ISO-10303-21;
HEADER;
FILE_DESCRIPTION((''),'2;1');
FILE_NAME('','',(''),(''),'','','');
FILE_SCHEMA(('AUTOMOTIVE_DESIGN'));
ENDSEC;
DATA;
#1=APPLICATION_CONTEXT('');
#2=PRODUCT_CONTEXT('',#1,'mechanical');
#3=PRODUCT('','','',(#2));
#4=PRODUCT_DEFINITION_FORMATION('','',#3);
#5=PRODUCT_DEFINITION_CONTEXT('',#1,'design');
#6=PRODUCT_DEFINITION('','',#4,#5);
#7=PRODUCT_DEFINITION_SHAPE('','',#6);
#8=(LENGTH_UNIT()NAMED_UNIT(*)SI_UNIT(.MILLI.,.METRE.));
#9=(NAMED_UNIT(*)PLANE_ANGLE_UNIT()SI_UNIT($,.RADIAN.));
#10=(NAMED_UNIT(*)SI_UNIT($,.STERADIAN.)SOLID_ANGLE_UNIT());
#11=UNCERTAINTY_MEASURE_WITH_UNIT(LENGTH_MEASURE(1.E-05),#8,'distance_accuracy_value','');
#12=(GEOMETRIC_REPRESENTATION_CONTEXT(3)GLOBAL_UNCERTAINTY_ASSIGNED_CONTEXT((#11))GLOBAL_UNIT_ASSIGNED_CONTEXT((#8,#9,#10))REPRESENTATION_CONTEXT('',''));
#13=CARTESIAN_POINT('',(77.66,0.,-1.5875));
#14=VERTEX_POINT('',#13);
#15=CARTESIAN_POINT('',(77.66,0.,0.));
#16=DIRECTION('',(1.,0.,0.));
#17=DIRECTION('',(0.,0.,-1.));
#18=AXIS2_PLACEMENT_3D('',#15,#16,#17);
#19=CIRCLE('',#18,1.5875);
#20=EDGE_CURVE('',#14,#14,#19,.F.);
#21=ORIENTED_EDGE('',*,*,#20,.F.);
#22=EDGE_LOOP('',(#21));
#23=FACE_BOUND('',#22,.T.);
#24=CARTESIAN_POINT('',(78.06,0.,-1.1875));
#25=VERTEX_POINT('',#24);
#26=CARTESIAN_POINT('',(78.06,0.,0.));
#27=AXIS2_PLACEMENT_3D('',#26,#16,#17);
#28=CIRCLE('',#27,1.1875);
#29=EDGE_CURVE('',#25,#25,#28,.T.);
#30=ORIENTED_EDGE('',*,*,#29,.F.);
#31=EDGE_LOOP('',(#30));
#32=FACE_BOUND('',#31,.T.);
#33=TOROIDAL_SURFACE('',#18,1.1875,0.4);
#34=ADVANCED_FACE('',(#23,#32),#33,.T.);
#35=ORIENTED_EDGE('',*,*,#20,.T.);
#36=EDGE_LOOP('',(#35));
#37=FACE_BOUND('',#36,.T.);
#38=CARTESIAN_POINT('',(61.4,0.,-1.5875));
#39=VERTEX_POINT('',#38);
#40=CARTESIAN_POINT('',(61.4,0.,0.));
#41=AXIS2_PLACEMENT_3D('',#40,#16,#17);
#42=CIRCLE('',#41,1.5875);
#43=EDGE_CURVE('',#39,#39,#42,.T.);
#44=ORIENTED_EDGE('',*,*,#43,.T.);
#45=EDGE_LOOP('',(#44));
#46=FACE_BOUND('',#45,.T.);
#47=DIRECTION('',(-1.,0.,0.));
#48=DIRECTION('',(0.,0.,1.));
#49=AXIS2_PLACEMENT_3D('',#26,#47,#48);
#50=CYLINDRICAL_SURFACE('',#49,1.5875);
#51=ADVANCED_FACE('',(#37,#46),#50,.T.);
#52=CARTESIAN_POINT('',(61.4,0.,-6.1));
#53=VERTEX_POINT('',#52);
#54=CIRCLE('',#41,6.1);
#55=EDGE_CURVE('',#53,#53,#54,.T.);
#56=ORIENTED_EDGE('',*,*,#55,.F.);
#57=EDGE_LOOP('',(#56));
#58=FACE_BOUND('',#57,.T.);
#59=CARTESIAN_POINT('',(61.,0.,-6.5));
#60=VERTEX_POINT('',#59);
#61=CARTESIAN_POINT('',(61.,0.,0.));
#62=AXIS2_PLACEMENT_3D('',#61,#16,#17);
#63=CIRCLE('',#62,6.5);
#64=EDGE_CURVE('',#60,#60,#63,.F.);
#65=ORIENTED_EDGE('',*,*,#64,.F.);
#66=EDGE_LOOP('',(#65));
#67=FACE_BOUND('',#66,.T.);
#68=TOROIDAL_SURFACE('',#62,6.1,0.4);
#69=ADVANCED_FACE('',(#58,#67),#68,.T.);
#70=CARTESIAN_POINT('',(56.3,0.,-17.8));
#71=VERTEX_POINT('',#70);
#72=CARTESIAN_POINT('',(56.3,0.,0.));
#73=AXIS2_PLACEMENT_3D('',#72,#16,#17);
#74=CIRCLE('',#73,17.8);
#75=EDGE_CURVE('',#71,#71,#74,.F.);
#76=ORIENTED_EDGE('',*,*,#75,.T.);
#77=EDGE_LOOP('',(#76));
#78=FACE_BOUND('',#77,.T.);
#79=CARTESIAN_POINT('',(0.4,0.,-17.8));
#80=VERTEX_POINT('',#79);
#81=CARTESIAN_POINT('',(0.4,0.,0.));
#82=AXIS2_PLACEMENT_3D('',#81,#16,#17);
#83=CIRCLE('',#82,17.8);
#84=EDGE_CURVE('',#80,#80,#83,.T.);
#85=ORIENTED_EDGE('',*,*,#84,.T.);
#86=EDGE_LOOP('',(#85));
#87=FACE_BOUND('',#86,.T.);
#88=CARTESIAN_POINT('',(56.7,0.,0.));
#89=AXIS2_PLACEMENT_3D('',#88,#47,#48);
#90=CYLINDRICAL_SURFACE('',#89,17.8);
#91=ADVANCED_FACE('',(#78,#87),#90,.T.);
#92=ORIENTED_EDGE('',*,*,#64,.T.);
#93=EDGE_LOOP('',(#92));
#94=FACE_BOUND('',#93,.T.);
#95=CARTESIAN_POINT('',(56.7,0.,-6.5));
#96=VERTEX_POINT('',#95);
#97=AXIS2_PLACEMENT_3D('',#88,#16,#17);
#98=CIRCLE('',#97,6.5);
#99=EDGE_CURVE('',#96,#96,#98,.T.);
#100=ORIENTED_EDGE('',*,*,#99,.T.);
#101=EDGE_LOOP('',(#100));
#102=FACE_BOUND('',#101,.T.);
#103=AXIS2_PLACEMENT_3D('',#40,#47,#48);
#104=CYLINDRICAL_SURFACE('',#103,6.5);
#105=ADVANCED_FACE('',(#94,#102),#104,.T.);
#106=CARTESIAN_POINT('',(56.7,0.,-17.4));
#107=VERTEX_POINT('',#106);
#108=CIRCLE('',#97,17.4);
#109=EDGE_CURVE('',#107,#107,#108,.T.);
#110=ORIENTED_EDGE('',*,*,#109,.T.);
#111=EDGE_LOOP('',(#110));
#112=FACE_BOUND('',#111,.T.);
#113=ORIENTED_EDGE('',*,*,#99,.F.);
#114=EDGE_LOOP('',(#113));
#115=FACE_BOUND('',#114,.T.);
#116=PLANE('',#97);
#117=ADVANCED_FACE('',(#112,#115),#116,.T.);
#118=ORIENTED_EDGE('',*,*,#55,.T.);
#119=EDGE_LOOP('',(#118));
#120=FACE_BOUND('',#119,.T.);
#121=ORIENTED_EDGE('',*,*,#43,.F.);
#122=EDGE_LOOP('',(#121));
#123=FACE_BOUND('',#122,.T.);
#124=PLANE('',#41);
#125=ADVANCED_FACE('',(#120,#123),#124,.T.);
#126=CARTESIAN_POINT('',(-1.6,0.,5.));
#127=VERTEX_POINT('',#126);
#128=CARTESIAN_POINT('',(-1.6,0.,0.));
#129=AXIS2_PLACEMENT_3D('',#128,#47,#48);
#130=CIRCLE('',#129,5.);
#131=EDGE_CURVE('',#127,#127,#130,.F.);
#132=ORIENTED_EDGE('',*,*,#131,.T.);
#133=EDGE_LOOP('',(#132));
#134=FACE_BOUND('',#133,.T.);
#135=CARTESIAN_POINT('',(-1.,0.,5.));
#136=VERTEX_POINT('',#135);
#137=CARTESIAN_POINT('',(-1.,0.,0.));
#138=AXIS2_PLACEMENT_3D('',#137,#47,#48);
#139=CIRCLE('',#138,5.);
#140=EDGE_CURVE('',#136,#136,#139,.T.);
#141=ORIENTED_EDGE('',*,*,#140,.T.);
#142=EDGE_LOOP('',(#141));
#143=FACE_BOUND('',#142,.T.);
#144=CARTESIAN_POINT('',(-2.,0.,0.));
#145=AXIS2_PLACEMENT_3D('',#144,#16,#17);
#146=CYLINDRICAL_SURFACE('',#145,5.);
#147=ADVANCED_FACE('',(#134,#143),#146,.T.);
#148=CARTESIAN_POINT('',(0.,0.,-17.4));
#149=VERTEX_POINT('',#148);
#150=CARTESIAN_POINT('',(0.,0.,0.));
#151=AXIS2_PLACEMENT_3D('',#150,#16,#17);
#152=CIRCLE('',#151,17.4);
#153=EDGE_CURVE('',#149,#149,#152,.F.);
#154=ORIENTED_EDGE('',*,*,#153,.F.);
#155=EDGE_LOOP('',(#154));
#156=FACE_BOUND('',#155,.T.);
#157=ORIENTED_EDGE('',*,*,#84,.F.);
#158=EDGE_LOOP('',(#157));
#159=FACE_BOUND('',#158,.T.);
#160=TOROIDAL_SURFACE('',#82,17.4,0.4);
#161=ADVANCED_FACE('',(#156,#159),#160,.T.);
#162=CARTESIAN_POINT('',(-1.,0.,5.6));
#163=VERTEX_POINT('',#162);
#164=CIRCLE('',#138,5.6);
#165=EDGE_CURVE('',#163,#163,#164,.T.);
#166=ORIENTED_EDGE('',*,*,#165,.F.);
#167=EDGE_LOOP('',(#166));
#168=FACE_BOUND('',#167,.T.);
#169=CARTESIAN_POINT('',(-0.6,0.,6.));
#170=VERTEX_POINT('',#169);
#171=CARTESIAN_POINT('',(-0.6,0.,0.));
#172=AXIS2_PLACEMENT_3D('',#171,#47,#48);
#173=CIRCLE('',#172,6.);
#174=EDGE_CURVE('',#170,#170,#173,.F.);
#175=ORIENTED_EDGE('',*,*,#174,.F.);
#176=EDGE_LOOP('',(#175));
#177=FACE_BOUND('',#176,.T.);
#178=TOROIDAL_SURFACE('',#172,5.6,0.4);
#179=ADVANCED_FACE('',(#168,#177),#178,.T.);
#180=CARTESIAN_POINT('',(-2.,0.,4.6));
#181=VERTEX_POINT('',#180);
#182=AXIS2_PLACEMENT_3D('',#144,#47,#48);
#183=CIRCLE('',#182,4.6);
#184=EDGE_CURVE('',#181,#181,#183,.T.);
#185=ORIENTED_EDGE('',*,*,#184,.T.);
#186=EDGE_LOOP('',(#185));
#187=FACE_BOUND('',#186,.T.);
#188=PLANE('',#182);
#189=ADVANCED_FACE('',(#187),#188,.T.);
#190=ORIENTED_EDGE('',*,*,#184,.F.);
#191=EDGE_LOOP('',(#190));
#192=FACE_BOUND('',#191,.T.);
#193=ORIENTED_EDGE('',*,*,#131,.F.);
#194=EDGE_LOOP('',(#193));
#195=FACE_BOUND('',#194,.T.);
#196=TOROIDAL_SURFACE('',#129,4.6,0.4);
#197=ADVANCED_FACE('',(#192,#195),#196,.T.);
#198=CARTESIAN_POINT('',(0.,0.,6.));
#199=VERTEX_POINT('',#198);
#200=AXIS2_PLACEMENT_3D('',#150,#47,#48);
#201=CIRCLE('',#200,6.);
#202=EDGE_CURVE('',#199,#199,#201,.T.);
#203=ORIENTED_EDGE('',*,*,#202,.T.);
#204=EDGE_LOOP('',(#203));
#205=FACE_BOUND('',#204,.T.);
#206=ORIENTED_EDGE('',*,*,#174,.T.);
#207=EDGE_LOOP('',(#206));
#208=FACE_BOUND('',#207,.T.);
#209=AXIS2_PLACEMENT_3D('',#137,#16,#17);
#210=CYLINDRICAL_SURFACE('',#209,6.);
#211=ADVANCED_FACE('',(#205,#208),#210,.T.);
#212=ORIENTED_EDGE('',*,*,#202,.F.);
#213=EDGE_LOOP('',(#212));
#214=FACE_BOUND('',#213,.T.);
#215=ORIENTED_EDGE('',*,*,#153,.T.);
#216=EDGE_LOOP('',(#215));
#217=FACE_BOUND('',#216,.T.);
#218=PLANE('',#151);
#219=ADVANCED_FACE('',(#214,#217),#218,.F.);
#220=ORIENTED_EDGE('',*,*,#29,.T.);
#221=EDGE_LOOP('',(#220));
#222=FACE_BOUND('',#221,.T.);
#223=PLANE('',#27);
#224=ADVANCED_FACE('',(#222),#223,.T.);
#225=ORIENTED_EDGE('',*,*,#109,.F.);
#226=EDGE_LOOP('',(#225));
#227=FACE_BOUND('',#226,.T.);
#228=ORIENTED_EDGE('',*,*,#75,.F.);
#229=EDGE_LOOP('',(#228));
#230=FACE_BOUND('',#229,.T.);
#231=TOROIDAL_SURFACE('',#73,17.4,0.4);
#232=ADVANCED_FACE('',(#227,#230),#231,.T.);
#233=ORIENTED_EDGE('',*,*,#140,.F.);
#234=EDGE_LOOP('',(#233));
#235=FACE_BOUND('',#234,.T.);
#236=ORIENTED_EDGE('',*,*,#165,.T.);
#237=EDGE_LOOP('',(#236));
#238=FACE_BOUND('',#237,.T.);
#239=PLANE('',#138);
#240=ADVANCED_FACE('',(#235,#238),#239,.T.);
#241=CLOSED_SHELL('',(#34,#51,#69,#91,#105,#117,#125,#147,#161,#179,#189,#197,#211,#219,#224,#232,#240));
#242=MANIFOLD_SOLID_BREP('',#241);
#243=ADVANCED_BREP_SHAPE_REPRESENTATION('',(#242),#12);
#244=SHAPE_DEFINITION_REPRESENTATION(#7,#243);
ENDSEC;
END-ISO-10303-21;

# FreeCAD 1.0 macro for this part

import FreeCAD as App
import Part
import Sketcher

V = App.Vector
Q = App.Units.Quantity


def edges_at(feature, points):
    """Names of the edges that pass closest to the given points."""
    edges = feature.Shape.Edges
    near = lambda p: min(range(len(edges)), key=lambda i: edges[i].distToShape(Part.Vertex(*p))[0])
    return sorted({f"Edge{near(p) + 1}" for p in points})

doc = App.newDocument("Part")
params = doc.addObject("Spreadsheet::Sheet", "Params")
for row, (alias, value) in enumerate([
    ("sketch1_diameter", "35.6 mm"),
    ("pad1_length", "56.7 mm"),
    ("sketch2_diameter", "12 mm"),
    ("pad2_length", "1 mm"),
    ("sketch3_diameter", "10 mm"),
    ("pad3_length", "1 mm"),
    ("sketch4_diameter", "13 mm"),
    ("pad4_length", "4.7 mm"),
    ("pad5_length", "16.66 mm"),
    ("fillet_radius", "0.4 mm"),
], start=1):
    params.set(f"A{row}", alias)
    params.set(f"B{row}", "=" + value)
    params.setAlias(f"B{row}", alias)

body = doc.addObject("PartDesign::Body", "Body")

# Sketch on YZ plane
sketch1 = doc.addObject("Sketcher::SketchObject", "Sketch")
body.addObject(sketch1)
sketch1.AttachmentSupport = (doc.YZ_Plane, [""])
sketch1.MapMode = "FlatFace"
sketch1.addGeometry(Part.Circle(V(0, 0, 0), V(0, 0, 1), 18), False)
sketch1.addConstraint(Sketcher.Constraint("Coincident", 0, 3, -1, 1))
sketch1.addConstraint(Sketcher.Constraint("Diameter", 0, Q("35.6 mm")))
sketch1.setExpression("Constraints[1]", "Params.sketch1_diameter")
pad1 = doc.addObject("PartDesign::Pad", "Pad")
body.addObject(pad1)
pad1.Profile = sketch1
pad1.setExpression("Length", "Params.pad1_length")

# Sketch on YZ plane
sketch2 = doc.addObject("Sketcher::SketchObject", "Sketch001")
body.addObject(sketch2)
sketch2.AttachmentSupport = (doc.YZ_Plane, [""])
sketch2.MapMode = "FlatFace"
sketch2.addGeometry(Part.Circle(V(0, 0, 0), V(0, 0, 1), 6), False)
sketch2.addConstraint(Sketcher.Constraint("Coincident", 0, 3, -1, 1))
sketch2.addConstraint(Sketcher.Constraint("Diameter", 0, Q("12 mm")))
sketch2.setExpression("Constraints[1]", "Params.sketch2_diameter")
pad2 = doc.addObject("PartDesign::Pad", "Pad001")
body.addObject(pad2)
pad2.Profile = sketch2
pad2.setExpression("Length", "Params.pad2_length")
pad2.Reversed = True

# Sketch on YZ plane
sketch3 = doc.addObject("Sketcher::SketchObject", "Sketch002")
body.addObject(sketch3)
sketch3.AttachmentSupport = (doc.YZ_Plane, [""])
sketch3.MapMode = "FlatFace"
sketch3.AttachmentOffset = App.Placement(V(0, 0, -1), App.Rotation())
sketch3.addGeometry(Part.Circle(V(0, 0, 0), V(0, 0, 1), 5), False)
sketch3.addConstraint(Sketcher.Constraint("Coincident", 0, 3, -1, 1))
sketch3.addConstraint(Sketcher.Constraint("Diameter", 0, Q("10 mm")))
sketch3.setExpression("Constraints[1]", "Params.sketch3_diameter")
pad3 = doc.addObject("PartDesign::Pad", "Pad002")
body.addObject(pad3)
pad3.Profile = sketch3
pad3.setExpression("Length", "Params.pad3_length")
pad3.Reversed = True

# Sketch on YZ plane
sketch4 = doc.addObject("Sketcher::SketchObject", "Sketch003")
body.addObject(sketch4)
sketch4.AttachmentSupport = (doc.YZ_Plane, [""])
sketch4.MapMode = "FlatFace"
sketch4.AttachmentOffset = App.Placement(V(0, 0, 56.7), App.Rotation())
sketch4.addGeometry(Part.Circle(V(0, 0, 0), V(0, 0, 1), 6), False)
sketch4.addConstraint(Sketcher.Constraint("Coincident", 0, 3, -1, 1))
sketch4.addConstraint(Sketcher.Constraint("Diameter", 0, Q("13 mm")))
sketch4.setExpression("Constraints[1]", "Params.sketch4_diameter")
pad4 = doc.addObject("PartDesign::Pad", "Pad003")
body.addObject(pad4)
pad4.Profile = sketch4
pad4.setExpression("Length", "Params.pad4_length")

# Sketch on YZ plane
sketch5 = doc.addObject("Sketcher::SketchObject", "Sketch004")
body.addObject(sketch5)
sketch5.AttachmentSupport = (doc.YZ_Plane, [""])
sketch5.MapMode = "FlatFace"
sketch5.AttachmentOffset = App.Placement(V(0, 0, 61.4), App.Rotation())
sketch5.addGeometry(Part.Circle(V(0, 0, 0), V(0, 0, 1), 1.6), False)
sketch5.addConstraint(Sketcher.Constraint("Coincident", 0, 3, -1, 1))
sketch5.addConstraint(Sketcher.Constraint("Diameter", 0, Q("3.175 mm")))
pad5 = doc.addObject("PartDesign::Pad", "Pad004")
body.addObject(pad5)
pad5.Profile = sketch5
pad5.setExpression("Length", "Params.pad5_length")
doc.recompute()

fillet = doc.addObject("PartDesign::Fillet", "Fillet")
body.addObject(fillet)
fillet.Base = (pad5, edges_at(pad5, [
    (-2, 0, -5),
    (61.4, 0, 6.5),
    (0, 0, 17.8),
    (78.06, 0, 1.587),
    (56.7, 0, 17.8),
    (-1, 0, -6),
]))
fillet.setExpression("Radius", "Params.fillet_radius")

doc.recompute()
